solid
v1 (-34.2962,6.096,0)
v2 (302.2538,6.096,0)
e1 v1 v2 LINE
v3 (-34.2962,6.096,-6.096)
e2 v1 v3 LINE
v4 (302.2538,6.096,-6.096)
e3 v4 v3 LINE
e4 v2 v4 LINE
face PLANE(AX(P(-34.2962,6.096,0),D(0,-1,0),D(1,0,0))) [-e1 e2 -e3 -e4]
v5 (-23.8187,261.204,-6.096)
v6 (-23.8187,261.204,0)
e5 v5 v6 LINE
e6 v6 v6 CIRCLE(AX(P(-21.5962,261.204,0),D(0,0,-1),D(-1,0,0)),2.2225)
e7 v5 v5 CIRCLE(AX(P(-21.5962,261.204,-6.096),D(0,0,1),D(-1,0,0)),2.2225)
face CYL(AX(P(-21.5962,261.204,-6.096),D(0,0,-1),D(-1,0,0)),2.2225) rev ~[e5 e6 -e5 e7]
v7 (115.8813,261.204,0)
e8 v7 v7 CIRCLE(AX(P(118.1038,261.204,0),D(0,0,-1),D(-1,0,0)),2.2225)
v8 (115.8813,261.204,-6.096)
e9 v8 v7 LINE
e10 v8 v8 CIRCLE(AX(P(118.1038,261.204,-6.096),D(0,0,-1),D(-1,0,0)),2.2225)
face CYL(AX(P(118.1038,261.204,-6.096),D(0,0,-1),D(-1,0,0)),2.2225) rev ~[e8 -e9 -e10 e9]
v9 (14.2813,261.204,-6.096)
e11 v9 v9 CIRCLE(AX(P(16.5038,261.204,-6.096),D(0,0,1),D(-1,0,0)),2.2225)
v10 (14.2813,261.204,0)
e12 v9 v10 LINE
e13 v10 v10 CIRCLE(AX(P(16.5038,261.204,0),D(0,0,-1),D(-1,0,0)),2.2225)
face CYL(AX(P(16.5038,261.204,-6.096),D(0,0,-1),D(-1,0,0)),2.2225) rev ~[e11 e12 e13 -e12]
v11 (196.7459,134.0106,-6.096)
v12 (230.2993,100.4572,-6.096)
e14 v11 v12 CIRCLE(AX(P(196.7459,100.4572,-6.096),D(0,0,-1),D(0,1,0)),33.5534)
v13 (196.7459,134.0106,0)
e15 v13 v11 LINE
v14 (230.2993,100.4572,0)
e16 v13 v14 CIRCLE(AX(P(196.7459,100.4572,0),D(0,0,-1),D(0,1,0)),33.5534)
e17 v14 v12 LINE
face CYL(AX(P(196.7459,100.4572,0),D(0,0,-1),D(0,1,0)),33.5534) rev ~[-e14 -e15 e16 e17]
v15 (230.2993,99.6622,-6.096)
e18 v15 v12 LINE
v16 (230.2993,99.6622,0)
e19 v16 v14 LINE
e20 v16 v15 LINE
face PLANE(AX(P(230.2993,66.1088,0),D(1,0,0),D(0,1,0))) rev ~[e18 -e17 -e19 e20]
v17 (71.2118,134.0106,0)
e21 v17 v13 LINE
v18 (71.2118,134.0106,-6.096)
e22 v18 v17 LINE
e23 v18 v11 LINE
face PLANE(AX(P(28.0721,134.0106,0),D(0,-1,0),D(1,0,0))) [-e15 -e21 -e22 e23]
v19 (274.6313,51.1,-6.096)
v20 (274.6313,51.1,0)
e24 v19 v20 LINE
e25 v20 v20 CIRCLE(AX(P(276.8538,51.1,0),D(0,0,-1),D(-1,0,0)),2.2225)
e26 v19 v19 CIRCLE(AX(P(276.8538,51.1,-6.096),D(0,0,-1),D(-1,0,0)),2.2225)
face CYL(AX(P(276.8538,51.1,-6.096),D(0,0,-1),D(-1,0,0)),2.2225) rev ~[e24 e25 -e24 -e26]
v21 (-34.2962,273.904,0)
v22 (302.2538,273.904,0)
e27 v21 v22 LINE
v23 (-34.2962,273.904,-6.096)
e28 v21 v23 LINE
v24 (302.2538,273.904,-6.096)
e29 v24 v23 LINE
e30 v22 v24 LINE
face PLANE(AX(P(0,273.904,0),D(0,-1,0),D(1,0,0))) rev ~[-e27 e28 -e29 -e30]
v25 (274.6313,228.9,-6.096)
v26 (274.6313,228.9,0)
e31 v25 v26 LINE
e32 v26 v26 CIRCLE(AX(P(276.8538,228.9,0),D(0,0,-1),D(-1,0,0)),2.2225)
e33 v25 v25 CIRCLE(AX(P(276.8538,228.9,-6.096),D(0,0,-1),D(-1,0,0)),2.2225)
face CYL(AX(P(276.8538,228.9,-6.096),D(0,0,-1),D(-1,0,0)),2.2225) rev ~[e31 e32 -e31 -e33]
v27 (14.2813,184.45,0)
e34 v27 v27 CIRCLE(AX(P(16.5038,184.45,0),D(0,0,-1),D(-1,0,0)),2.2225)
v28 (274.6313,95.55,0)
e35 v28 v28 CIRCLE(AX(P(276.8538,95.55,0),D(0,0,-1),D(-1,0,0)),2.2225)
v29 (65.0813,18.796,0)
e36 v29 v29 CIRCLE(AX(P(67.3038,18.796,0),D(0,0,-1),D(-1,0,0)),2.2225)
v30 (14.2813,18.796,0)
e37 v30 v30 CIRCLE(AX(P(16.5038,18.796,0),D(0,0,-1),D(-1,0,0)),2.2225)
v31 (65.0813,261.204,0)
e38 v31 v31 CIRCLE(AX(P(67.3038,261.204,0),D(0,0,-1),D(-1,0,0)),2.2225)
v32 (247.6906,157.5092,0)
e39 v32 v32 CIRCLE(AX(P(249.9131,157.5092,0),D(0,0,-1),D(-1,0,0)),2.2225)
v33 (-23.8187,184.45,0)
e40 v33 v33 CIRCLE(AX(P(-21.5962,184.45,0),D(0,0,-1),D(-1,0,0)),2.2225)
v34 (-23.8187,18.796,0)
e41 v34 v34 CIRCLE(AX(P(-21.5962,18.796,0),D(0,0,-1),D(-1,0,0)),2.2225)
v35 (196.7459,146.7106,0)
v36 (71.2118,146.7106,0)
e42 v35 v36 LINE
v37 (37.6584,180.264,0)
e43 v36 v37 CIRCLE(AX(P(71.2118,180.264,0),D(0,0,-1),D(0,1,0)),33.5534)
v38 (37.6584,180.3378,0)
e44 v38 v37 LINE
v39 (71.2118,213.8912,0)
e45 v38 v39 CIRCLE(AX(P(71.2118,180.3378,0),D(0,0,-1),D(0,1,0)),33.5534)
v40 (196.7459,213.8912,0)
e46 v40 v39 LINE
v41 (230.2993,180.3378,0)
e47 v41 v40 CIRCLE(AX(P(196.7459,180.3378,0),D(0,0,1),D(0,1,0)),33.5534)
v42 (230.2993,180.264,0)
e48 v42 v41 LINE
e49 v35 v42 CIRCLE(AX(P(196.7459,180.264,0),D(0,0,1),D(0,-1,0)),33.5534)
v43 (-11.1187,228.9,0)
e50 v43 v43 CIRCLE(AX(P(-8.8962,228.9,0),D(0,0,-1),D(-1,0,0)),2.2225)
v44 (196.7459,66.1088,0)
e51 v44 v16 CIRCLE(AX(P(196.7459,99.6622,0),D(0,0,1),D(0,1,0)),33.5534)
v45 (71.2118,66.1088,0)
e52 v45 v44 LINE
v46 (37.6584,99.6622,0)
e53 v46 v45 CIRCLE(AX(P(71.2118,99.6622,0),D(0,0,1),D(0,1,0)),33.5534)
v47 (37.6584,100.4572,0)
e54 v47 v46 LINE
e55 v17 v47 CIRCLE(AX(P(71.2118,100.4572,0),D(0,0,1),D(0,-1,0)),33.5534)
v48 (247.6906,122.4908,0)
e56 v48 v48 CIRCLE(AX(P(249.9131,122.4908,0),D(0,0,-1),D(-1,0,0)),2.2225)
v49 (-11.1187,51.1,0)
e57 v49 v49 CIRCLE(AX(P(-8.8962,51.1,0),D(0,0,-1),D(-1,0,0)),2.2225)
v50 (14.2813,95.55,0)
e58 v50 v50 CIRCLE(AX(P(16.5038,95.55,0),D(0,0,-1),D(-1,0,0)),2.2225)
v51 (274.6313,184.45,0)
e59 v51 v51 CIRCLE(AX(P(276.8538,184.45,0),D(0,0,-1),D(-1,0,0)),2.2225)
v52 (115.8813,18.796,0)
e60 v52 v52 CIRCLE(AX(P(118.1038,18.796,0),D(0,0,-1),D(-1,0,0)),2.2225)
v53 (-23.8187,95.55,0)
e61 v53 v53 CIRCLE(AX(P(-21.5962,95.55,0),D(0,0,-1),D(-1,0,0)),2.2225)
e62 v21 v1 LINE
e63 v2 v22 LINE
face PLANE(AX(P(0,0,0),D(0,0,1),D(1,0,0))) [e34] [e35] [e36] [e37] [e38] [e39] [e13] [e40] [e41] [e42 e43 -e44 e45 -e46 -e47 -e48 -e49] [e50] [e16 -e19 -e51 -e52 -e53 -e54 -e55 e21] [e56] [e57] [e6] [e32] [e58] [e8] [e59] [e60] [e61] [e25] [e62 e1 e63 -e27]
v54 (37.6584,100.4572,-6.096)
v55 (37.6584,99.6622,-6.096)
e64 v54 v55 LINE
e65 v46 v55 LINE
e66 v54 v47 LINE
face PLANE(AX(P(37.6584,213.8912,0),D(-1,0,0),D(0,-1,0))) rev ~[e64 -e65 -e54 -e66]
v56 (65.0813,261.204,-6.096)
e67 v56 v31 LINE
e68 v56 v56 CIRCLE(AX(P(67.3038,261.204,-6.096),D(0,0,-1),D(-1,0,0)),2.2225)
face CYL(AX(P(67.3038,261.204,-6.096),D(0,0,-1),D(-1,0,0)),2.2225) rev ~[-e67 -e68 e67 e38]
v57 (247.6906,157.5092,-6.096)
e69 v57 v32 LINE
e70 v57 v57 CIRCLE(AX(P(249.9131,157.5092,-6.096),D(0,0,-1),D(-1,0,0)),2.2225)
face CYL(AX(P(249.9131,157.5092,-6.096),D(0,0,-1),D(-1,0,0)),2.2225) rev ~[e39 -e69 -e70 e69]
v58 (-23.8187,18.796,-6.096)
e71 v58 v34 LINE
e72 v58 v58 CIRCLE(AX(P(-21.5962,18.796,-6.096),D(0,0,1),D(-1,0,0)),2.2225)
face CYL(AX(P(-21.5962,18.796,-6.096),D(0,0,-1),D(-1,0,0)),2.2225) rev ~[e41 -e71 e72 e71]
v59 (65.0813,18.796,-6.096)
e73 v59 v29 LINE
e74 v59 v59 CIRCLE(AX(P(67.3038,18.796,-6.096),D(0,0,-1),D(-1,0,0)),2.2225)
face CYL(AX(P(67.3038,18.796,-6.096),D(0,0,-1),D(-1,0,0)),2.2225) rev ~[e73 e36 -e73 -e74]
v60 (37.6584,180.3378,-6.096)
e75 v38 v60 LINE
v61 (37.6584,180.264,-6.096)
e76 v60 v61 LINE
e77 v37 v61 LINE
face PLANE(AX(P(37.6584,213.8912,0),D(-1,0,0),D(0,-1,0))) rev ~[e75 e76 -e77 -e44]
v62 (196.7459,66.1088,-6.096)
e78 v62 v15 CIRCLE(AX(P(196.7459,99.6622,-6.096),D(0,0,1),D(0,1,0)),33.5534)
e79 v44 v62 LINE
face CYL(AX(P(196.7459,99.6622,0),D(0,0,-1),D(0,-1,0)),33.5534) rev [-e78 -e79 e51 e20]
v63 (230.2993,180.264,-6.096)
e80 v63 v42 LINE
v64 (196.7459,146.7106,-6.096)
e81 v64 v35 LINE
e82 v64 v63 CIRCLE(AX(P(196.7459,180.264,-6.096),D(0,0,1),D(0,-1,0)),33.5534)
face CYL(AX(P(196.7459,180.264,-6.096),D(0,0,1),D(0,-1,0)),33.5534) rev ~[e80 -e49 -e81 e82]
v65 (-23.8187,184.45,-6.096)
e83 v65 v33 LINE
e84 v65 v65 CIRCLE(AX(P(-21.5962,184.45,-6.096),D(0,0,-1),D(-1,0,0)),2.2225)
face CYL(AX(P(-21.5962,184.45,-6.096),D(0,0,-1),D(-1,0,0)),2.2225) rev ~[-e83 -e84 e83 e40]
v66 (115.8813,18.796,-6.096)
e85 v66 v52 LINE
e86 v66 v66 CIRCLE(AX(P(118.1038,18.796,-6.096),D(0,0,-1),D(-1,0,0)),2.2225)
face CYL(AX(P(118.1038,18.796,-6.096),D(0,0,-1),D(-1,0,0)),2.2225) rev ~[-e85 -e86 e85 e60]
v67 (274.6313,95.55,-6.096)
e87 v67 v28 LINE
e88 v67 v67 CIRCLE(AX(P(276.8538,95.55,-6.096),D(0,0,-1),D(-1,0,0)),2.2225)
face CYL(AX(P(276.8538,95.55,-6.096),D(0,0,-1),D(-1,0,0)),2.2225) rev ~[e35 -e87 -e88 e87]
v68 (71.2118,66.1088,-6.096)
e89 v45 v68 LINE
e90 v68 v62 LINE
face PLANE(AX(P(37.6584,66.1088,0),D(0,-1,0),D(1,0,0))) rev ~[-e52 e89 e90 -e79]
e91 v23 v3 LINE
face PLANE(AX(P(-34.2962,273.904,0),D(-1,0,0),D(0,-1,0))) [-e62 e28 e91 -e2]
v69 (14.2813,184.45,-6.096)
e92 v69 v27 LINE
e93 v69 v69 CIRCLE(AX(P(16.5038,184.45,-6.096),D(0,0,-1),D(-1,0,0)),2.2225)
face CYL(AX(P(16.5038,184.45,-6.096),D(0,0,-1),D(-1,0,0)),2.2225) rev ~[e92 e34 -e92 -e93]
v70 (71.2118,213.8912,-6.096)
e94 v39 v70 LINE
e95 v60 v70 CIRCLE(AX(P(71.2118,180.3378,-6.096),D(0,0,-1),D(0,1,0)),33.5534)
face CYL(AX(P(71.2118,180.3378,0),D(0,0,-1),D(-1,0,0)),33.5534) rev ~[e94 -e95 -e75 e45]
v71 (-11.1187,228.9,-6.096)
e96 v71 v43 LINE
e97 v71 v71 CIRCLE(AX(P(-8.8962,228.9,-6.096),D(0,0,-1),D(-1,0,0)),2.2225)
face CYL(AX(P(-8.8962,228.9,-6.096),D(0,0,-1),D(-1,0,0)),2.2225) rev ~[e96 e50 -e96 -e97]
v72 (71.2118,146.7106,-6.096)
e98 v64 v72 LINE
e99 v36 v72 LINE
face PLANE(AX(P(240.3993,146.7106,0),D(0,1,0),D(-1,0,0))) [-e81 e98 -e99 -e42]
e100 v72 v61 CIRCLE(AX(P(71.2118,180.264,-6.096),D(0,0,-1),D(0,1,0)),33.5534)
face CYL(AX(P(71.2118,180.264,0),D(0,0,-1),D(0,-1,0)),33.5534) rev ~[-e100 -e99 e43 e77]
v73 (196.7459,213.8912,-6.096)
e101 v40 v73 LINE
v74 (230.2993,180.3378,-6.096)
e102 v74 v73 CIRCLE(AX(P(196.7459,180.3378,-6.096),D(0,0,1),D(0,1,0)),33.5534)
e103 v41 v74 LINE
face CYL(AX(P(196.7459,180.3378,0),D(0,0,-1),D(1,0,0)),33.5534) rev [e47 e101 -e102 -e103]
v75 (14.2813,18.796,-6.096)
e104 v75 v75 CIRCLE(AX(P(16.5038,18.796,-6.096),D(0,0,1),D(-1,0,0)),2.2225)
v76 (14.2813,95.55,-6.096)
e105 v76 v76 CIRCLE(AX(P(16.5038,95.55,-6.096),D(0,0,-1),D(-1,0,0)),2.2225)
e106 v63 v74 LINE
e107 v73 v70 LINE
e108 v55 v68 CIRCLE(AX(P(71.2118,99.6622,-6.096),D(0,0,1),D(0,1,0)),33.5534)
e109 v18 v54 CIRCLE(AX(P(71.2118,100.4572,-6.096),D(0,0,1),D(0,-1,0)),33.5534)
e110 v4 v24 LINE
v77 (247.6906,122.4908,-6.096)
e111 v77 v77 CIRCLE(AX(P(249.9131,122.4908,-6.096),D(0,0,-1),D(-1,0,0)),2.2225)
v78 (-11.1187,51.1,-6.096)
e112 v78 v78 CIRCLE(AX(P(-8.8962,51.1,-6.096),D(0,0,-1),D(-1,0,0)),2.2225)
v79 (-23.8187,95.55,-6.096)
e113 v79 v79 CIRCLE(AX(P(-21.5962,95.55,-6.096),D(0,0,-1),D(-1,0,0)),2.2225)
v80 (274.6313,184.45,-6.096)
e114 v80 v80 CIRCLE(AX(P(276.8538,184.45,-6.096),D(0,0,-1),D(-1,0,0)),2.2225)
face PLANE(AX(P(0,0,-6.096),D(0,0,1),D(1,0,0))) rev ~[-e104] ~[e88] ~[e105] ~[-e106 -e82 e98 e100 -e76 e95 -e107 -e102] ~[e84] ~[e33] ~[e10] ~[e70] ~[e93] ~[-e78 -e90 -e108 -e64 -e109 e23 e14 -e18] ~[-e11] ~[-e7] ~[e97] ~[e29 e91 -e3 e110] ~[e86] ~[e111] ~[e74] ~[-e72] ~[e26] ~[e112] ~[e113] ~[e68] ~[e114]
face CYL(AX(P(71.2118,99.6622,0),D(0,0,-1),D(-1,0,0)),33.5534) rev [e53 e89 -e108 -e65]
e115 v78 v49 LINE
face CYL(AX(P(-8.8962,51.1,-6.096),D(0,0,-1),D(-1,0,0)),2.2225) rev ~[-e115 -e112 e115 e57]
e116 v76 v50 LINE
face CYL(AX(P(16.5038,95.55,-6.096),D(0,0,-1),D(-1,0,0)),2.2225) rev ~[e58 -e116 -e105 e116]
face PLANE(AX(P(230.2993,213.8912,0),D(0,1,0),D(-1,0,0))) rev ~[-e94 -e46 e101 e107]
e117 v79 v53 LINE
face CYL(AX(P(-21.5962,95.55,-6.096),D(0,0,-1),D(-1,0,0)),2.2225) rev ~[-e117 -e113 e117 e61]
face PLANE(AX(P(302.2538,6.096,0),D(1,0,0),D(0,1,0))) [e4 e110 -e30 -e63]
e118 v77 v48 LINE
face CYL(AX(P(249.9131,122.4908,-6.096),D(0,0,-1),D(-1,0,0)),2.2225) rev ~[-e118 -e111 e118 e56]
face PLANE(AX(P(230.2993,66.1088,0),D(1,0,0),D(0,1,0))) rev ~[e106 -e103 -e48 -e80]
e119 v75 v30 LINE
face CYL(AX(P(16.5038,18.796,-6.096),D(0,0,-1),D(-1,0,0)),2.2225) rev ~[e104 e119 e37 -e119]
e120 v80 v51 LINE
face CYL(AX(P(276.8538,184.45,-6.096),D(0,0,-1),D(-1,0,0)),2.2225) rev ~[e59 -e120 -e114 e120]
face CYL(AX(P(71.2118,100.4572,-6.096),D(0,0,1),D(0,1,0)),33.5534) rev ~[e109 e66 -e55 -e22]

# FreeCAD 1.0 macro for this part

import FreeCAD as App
import Part
import Sketcher
Q = App.Units.Quantity


def edges_at(feature, points):
    """Names of the edges that pass closest to the given points."""
    edges = feature.Shape.Edges
    near = lambda p: min(range(len(edges)), key=lambda i: edges[i].distToShape(Part.Vertex(*p))[0])
    return sorted({f"Edge{near(p) + 1}" for p in points})

doc = App.newDocument("Part")
body = doc.addObject("PartDesign::Body", "Body")

# Sketch on XY plane
sketch1 = doc.addObject("Sketcher::SketchObject", "Sketch")
body.addObject(sketch1)
sketch1.AttachmentSupport = (doc.XY_Plane, [""])
sketch1.MapMode = "FlatFace"
sketch1.addGeometry([
    Part.LineSegment(App.Vector(-34, 274, 0), App.Vector(-34, 6, 0)),
    Part.LineSegment(App.Vector(-34, 6, 0), App.Vector(302, 6, 0)),
    Part.LineSegment(App.Vector(302, 6, 0), App.Vector(302, 274, 0)),
    Part.LineSegment(App.Vector(302, 274, 0), App.Vector(-34, 274, 0)),
], False)
sketch1.addConstraint([
    Sketcher.Constraint("Coincident", 0, 2, 1, 1),
    Sketcher.Constraint("Coincident", 1, 2, 2, 1),
    Sketcher.Constraint("Coincident", 2, 2, 3, 1),
    Sketcher.Constraint("Coincident", 3, 2, 0, 1),
    Sketcher.Constraint("Vertical", 0),
    Sketcher.Constraint("Horizontal", 1),
    Sketcher.Constraint("Vertical", 2),
    Sketcher.Constraint("Horizontal", 3),
    Sketcher.Constraint("DistanceX", 1, 1, 1, 2, Q("13.25 in")),
    Sketcher.Constraint("DistanceY", -1, 1, 0, 2, Q("0.24 in")),
    Sketcher.Constraint("DistanceY", 0, 2, 0, 1, 267.808),
    Sketcher.Constraint("DistanceX", 0, 2, -1, 1, 34.2962),
])
pad1 = doc.addObject("PartDesign::Pad", "Pad")
body.addObject(pad1)
pad1.Profile = sketch1
pad1.Length = Q("0.24 in")
pad1.Reversed = True

# Sketch on XY plane
sketch2 = doc.addObject("Sketcher::SketchObject", "Sketch001")
body.addObject(sketch2)
sketch2.AttachmentSupport = (doc.XY_Plane, [""])
sketch2.MapMode = "FlatFace"
sketch2.AttachmentOffset = App.Placement(App.Vector(0, 0, -0.24 * 25.4), App.Rotation())
sketch2.addGeometry([
    Part.Circle(App.Vector(-21.6, 18.8, 0), App.Vector(0, 0, 1), 2.2),  # 0
    Part.Circle(App.Vector(16.5, 18.8, 0), App.Vector(0, 0, 1), 2.2),  # 1
    Part.Circle(App.Vector(-21.6, 261.2, 0), App.Vector(0, 0, 1), 2.2),  # 2
    Part.Circle(App.Vector(16.5, 261.2, 0), App.Vector(0, 0, 1), 2.2),  # 3
    Part.Circle(App.Vector(118.1, 18.8, 0), App.Vector(0, 0, 1), 2.2),  # 4
    Part.Circle(App.Vector(67.3, 18.8, 0), App.Vector(0, 0, 1), 2.2),  # 5
    Part.Circle(App.Vector(118.1, 261.2, 0), App.Vector(0, 0, 1), 2.2),  # 6
    Part.Circle(App.Vector(67.3, 261.2, 0), App.Vector(0, 0, 1), 2.2),  # 7
], False)
sketch2.addConstraint([
    Sketcher.Constraint("Equal", 0, 1),
    Sketcher.Constraint("Equal", 1, 2),
    Sketcher.Constraint("Equal", 2, 3),
    Sketcher.Constraint("Equal", 3, 4),
    Sketcher.Constraint("Equal", 4, 5),
    Sketcher.Constraint("Equal", 5, 6),
    Sketcher.Constraint("Equal", 6, 7),
    Sketcher.Constraint("Horizontal", 0, 3, 1, 3),
    Sketcher.Constraint("Horizontal", 2, 3, 3, 3),
    Sketcher.Constraint("Horizontal", 1, 3, 4, 3),
    Sketcher.Constraint("Horizontal", 4, 3, 5, 3),
    Sketcher.Constraint("Horizontal", 3, 3, 6, 3),
    Sketcher.Constraint("Horizontal", 6, 3, 7, 3),
    Sketcher.Constraint("Vertical", 0, 3, 2, 3),
    Sketcher.Constraint("Vertical", 1, 3, 3, 3),
    Sketcher.Constraint("Vertical", 4, 3, 6, 3),
    Sketcher.Constraint("Vertical", 5, 3, 7, 3),
    Sketcher.Constraint("Diameter", 0, Q("0.175 in")),
    Sketcher.Constraint("DistanceX", 1, 3, 5, 3, Q("2 in")),
    Sketcher.Constraint("DistanceX", 5, 3, 4, 3, Q("2 in")),
    Sketcher.Constraint("DistanceX", 0, 3, 1, 3, Q("1.5 in")),
    Sketcher.Constraint("DistanceY", -1, 1, 0, 3, Q("0.74 in")),
    Sketcher.Constraint("DistanceX", 0, 3, -1, 1, 21.5962),
    Sketcher.Constraint("DistanceY", -1, 1, 2, 3, 261.204),
])
pocket1 = doc.addObject("PartDesign::Pocket", "Pocket")
body.addObject(pocket1)
pocket1.Profile = sketch2
pocket1.Length = Q("0.4275 in")
pocket1.Reversed = True

# Sketch on XY plane
sketch3 = doc.addObject("Sketcher::SketchObject", "Sketch002")
body.addObject(sketch3)
sketch3.AttachmentSupport = (doc.XY_Plane, [""])
sketch3.MapMode = "FlatFace"
sketch3.AttachmentOffset = App.Placement(App.Vector(0, 0, -0.24 * 25.4), App.Rotation())
sketch3.addGeometry([
    Part.Circle(App.Vector(-8.9, 228.9, 0), App.Vector(0, 0, 1), 2.2),  # 0
    Part.Circle(App.Vector(-21.6, 184.4, 0), App.Vector(0, 0, 1), 2.2),  # 1
    Part.Circle(App.Vector(16.5, 184.4, 0), App.Vector(0, 0, 1), 2.2),  # 2
    Part.Circle(App.Vector(16.5, 95.5, 0), App.Vector(0, 0, 1), 2.2),  # 3
    Part.Circle(App.Vector(-8.9, 51.1, 0), App.Vector(0, 0, 1), 2.2),  # 4
    Part.Circle(App.Vector(-21.6, 95.5, 0), App.Vector(0, 0, 1), 2.2),  # 5
], False)
sketch3.addConstraint([
    Sketcher.Constraint("Equal", 0, 1),
    Sketcher.Constraint("Equal", 1, 2),
    Sketcher.Constraint("Equal", 2, 3),
    Sketcher.Constraint("Equal", 3, 4),
    Sketcher.Constraint("Equal", 4, 5),
    Sketcher.Constraint("Horizontal", 1, 3, 2, 3),
    Sketcher.Constraint("Horizontal", 3, 3, 5, 3),
    Sketcher.Constraint("Vertical", 2, 3, 3, 3),
    Sketcher.Constraint("Vertical", 0, 3, 4, 3),
    Sketcher.Constraint("Vertical", 1, 3, 5, 3),
    Sketcher.Constraint("Diameter", 0, Q("0.175 in")),
    Sketcher.Constraint("DistanceX", 0, 3, 2, 3, Q("1 in")),
    Sketcher.Constraint("DistanceY", 4, 3, 0, 3, Q("7 in")),
    Sketcher.Constraint("DistanceX", 1, 3, 0, 3, Q("0.5 in")),
    Sketcher.Constraint("DistanceY", 3, 3, 2, 3, Q("3.5 in")),
    Sketcher.Constraint("DistanceY", 1, 3, 0, 3, Q("1.75 in")),
    Sketcher.Constraint("DistanceY", -1, 1, 0, 3, Q("9.0118 in")),
    Sketcher.Constraint("DistanceX", 0, 3, -1, 1, 8.8962),
])
pocket2 = doc.addObject("PartDesign::Pocket", "Pocket001")
body.addObject(pocket2)
pocket2.Profile = sketch3
pocket2.Length = Q("0.4275 in")
pocket2.Reversed = True

# Sketch on XY plane
sketch4 = doc.addObject("Sketcher::SketchObject", "Sketch003")
body.addObject(sketch4)
sketch4.AttachmentSupport = (doc.XY_Plane, [""])
sketch4.MapMode = "FlatFace"
sketch4.AttachmentOffset = App.Placement(App.Vector(0, 0, -0.24 * 25.4), App.Rotation())
sketch4.addGeometry([
    Part.Circle(App.Vector(276.9, 228.9, 0), App.Vector(0, 0, 1), 2.2),  # 0
    Part.Circle(App.Vector(276.9, 184.4, 0), App.Vector(0, 0, 1), 2.2),  # 1
    Part.Circle(App.Vector(276.9, 95.5, 0), App.Vector(0, 0, 1), 2.2),  # 2
    Part.Circle(App.Vector(276.9, 51.1, 0), App.Vector(0, 0, 1), 2.2),  # 3
    Part.Circle(App.Vector(249.9, 157.5, 0), App.Vector(0, 0, 1), 2.2),  # 4
    Part.Circle(App.Vector(249.9, 122.5, 0), App.Vector(0, 0, 1), 2.2),  # 5
], False)
sketch4.addConstraint([
    Sketcher.Constraint("Equal", 0, 1),
    Sketcher.Constraint("Equal", 1, 2),
    Sketcher.Constraint("Equal", 2, 3),
    Sketcher.Constraint("Equal", 3, 4),
    Sketcher.Constraint("Equal", 4, 5),
    Sketcher.Constraint("Vertical", 0, 3, 1, 3),
    Sketcher.Constraint("Vertical", 1, 3, 2, 3),
    Sketcher.Constraint("Vertical", 2, 3, 3, 3),
    Sketcher.Constraint("Vertical", 4, 3, 5, 3),
    Sketcher.Constraint("Diameter", 0, Q("0.175 in")),
    Sketcher.Constraint("DistanceY", 3, 3, 0, 3, Q("7 in")),
    Sketcher.Constraint("DistanceY", 2, 3, 1, 3, Q("3.5 in")),
    Sketcher.Constraint("DistanceY", 1, 3, 0, 3, Q("1.75 in")),
    Sketcher.Constraint("DistanceY", -1, 1, 0, 3, Q("9.0118 in")),
    Sketcher.Constraint("DistanceX", -1, 1, 4, 3, Q("9.8391 in")),
    Sketcher.Constraint("DistanceX", -1, 1, 0, 3, 276.8538),
    Sketcher.Constraint("DistanceY", -1, 1, 4, 3, 157.5092),
    Sketcher.Constraint("DistanceY", -1, 1, 5, 3, 122.4908),
])
pocket3 = doc.addObject("PartDesign::Pocket", "Pocket002")
body.addObject(pocket3)
pocket3.Profile = sketch4
pocket3.Length = Q("0.4275 in")
pocket3.Reversed = True

# Sketch on XY plane
sketch5 = doc.addObject("Sketcher::SketchObject", "Sketch004")
body.addObject(sketch5)
sketch5.AttachmentSupport = (doc.XY_Plane, [""])
sketch5.MapMode = "FlatFace"
sketch5.addGeometry([
    Part.LineSegment(App.Vector(38, 214, 0), App.Vector(38, 66, 0)),
    Part.LineSegment(App.Vector(38, 66, 0), App.Vector(230, 66, 0)),
    Part.LineSegment(App.Vector(230, 66, 0), App.Vector(230, 214, 0)),
    Part.LineSegment(App.Vector(230, 214, 0), App.Vector(38, 214, 0)),
], False)
sketch5.addConstraint([
    Sketcher.Constraint("Coincident", 0, 2, 1, 1),
    Sketcher.Constraint("Coincident", 1, 2, 2, 1),
    Sketcher.Constraint("Coincident", 2, 2, 3, 1),
    Sketcher.Constraint("Coincident", 3, 2, 0, 1),
    Sketcher.Constraint("Vertical", 0),
    Sketcher.Constraint("Horizontal", 1),
    Sketcher.Constraint("Vertical", 2),
    Sketcher.Constraint("Horizontal", 3),
    Sketcher.Constraint("DistanceY", 0, 2, 0, 1, Q("5.8182 in")),
    Sketcher.Constraint("DistanceX", 1, 1, 1, 2, Q("7.5842913 in")),
    Sketcher.Constraint("DistanceY", -1, 1, 0, 2, Q("2.6027 in")),
    Sketcher.Constraint("DistanceX", -1, 1, 1, 2, Q("9.0669 in")),
])
pocket4 = doc.addObject("PartDesign::Pocket", "Pocket003")
body.addObject(pocket4)
pocket4.Profile = sketch5
pocket4.Length = Q("0.4275 in")

# Sketch on XY plane
sketch6 = doc.addObject("Sketcher::SketchObject", "Sketch005")
body.addObject(sketch6)
sketch6.AttachmentSupport = (doc.XY_Plane, [""])
sketch6.MapMode = "FlatFace"
sketch6.addGeometry([
    Part.LineSegment(App.Vector(28, 147, 0), App.Vector(28, 134, 0)),
    Part.LineSegment(App.Vector(28, 134, 0), App.Vector(240, 134, 0)),
    Part.LineSegment(App.Vector(240, 134, 0), App.Vector(240, 147, 0)),
    Part.LineSegment(App.Vector(240, 147, 0), App.Vector(28, 147, 0)),
], False)
sketch6.addConstraint([
    Sketcher.Constraint("Coincident", 0, 2, 1, 1),
    Sketcher.Constraint("Coincident", 1, 2, 2, 1),
    Sketcher.Constraint("Coincident", 2, 2, 3, 1),
    Sketcher.Constraint("Coincident", 3, 2, 0, 1),
    Sketcher.Constraint("Vertical", 0),
    Sketcher.Constraint("Horizontal", 1),
    Sketcher.Constraint("Vertical", 2),
    Sketcher.Constraint("Horizontal", 3),
    Sketcher.Constraint("DistanceY", 0, 2, 0, 1, Q("0.5 in")),
    Sketcher.Constraint("DistanceY", -1, 1, 0, 2, Q("5.276 in")),
    Sketcher.Constraint("DistanceX", 1, 1, 1, 2, 212.3272),
    Sketcher.Constraint("DistanceX", -1, 1, 0, 2, Q("1.1052 in")),
])
pad2 = doc.addObject("PartDesign::Pad", "Pad001")
body.addObject(pad2)
pad2.Profile = sketch6
pad2.Length = Q("0.24 in")
pad2.Reversed = True
doc.recompute()

fillet = doc.addObject("PartDesign::Fillet", "Fillet")
body.addObject(fillet)
fillet.Base = (pad2, edges_at(pad2, [
    (230.299, 66.109, -3.048),
    (230.299, 134.011, -3.048),
    (230.299, 146.711, -3.048),
    (230.299, 213.891, -3.048),
    (37.658, 66.109, -3.048),
    (37.658, 134.011, -3.048),
    (37.658, 146.711, -3.048),
    (37.658, 213.891, -3.048),
]))
fillet.Radius = Q("1.321 in")

doc.recompute()
